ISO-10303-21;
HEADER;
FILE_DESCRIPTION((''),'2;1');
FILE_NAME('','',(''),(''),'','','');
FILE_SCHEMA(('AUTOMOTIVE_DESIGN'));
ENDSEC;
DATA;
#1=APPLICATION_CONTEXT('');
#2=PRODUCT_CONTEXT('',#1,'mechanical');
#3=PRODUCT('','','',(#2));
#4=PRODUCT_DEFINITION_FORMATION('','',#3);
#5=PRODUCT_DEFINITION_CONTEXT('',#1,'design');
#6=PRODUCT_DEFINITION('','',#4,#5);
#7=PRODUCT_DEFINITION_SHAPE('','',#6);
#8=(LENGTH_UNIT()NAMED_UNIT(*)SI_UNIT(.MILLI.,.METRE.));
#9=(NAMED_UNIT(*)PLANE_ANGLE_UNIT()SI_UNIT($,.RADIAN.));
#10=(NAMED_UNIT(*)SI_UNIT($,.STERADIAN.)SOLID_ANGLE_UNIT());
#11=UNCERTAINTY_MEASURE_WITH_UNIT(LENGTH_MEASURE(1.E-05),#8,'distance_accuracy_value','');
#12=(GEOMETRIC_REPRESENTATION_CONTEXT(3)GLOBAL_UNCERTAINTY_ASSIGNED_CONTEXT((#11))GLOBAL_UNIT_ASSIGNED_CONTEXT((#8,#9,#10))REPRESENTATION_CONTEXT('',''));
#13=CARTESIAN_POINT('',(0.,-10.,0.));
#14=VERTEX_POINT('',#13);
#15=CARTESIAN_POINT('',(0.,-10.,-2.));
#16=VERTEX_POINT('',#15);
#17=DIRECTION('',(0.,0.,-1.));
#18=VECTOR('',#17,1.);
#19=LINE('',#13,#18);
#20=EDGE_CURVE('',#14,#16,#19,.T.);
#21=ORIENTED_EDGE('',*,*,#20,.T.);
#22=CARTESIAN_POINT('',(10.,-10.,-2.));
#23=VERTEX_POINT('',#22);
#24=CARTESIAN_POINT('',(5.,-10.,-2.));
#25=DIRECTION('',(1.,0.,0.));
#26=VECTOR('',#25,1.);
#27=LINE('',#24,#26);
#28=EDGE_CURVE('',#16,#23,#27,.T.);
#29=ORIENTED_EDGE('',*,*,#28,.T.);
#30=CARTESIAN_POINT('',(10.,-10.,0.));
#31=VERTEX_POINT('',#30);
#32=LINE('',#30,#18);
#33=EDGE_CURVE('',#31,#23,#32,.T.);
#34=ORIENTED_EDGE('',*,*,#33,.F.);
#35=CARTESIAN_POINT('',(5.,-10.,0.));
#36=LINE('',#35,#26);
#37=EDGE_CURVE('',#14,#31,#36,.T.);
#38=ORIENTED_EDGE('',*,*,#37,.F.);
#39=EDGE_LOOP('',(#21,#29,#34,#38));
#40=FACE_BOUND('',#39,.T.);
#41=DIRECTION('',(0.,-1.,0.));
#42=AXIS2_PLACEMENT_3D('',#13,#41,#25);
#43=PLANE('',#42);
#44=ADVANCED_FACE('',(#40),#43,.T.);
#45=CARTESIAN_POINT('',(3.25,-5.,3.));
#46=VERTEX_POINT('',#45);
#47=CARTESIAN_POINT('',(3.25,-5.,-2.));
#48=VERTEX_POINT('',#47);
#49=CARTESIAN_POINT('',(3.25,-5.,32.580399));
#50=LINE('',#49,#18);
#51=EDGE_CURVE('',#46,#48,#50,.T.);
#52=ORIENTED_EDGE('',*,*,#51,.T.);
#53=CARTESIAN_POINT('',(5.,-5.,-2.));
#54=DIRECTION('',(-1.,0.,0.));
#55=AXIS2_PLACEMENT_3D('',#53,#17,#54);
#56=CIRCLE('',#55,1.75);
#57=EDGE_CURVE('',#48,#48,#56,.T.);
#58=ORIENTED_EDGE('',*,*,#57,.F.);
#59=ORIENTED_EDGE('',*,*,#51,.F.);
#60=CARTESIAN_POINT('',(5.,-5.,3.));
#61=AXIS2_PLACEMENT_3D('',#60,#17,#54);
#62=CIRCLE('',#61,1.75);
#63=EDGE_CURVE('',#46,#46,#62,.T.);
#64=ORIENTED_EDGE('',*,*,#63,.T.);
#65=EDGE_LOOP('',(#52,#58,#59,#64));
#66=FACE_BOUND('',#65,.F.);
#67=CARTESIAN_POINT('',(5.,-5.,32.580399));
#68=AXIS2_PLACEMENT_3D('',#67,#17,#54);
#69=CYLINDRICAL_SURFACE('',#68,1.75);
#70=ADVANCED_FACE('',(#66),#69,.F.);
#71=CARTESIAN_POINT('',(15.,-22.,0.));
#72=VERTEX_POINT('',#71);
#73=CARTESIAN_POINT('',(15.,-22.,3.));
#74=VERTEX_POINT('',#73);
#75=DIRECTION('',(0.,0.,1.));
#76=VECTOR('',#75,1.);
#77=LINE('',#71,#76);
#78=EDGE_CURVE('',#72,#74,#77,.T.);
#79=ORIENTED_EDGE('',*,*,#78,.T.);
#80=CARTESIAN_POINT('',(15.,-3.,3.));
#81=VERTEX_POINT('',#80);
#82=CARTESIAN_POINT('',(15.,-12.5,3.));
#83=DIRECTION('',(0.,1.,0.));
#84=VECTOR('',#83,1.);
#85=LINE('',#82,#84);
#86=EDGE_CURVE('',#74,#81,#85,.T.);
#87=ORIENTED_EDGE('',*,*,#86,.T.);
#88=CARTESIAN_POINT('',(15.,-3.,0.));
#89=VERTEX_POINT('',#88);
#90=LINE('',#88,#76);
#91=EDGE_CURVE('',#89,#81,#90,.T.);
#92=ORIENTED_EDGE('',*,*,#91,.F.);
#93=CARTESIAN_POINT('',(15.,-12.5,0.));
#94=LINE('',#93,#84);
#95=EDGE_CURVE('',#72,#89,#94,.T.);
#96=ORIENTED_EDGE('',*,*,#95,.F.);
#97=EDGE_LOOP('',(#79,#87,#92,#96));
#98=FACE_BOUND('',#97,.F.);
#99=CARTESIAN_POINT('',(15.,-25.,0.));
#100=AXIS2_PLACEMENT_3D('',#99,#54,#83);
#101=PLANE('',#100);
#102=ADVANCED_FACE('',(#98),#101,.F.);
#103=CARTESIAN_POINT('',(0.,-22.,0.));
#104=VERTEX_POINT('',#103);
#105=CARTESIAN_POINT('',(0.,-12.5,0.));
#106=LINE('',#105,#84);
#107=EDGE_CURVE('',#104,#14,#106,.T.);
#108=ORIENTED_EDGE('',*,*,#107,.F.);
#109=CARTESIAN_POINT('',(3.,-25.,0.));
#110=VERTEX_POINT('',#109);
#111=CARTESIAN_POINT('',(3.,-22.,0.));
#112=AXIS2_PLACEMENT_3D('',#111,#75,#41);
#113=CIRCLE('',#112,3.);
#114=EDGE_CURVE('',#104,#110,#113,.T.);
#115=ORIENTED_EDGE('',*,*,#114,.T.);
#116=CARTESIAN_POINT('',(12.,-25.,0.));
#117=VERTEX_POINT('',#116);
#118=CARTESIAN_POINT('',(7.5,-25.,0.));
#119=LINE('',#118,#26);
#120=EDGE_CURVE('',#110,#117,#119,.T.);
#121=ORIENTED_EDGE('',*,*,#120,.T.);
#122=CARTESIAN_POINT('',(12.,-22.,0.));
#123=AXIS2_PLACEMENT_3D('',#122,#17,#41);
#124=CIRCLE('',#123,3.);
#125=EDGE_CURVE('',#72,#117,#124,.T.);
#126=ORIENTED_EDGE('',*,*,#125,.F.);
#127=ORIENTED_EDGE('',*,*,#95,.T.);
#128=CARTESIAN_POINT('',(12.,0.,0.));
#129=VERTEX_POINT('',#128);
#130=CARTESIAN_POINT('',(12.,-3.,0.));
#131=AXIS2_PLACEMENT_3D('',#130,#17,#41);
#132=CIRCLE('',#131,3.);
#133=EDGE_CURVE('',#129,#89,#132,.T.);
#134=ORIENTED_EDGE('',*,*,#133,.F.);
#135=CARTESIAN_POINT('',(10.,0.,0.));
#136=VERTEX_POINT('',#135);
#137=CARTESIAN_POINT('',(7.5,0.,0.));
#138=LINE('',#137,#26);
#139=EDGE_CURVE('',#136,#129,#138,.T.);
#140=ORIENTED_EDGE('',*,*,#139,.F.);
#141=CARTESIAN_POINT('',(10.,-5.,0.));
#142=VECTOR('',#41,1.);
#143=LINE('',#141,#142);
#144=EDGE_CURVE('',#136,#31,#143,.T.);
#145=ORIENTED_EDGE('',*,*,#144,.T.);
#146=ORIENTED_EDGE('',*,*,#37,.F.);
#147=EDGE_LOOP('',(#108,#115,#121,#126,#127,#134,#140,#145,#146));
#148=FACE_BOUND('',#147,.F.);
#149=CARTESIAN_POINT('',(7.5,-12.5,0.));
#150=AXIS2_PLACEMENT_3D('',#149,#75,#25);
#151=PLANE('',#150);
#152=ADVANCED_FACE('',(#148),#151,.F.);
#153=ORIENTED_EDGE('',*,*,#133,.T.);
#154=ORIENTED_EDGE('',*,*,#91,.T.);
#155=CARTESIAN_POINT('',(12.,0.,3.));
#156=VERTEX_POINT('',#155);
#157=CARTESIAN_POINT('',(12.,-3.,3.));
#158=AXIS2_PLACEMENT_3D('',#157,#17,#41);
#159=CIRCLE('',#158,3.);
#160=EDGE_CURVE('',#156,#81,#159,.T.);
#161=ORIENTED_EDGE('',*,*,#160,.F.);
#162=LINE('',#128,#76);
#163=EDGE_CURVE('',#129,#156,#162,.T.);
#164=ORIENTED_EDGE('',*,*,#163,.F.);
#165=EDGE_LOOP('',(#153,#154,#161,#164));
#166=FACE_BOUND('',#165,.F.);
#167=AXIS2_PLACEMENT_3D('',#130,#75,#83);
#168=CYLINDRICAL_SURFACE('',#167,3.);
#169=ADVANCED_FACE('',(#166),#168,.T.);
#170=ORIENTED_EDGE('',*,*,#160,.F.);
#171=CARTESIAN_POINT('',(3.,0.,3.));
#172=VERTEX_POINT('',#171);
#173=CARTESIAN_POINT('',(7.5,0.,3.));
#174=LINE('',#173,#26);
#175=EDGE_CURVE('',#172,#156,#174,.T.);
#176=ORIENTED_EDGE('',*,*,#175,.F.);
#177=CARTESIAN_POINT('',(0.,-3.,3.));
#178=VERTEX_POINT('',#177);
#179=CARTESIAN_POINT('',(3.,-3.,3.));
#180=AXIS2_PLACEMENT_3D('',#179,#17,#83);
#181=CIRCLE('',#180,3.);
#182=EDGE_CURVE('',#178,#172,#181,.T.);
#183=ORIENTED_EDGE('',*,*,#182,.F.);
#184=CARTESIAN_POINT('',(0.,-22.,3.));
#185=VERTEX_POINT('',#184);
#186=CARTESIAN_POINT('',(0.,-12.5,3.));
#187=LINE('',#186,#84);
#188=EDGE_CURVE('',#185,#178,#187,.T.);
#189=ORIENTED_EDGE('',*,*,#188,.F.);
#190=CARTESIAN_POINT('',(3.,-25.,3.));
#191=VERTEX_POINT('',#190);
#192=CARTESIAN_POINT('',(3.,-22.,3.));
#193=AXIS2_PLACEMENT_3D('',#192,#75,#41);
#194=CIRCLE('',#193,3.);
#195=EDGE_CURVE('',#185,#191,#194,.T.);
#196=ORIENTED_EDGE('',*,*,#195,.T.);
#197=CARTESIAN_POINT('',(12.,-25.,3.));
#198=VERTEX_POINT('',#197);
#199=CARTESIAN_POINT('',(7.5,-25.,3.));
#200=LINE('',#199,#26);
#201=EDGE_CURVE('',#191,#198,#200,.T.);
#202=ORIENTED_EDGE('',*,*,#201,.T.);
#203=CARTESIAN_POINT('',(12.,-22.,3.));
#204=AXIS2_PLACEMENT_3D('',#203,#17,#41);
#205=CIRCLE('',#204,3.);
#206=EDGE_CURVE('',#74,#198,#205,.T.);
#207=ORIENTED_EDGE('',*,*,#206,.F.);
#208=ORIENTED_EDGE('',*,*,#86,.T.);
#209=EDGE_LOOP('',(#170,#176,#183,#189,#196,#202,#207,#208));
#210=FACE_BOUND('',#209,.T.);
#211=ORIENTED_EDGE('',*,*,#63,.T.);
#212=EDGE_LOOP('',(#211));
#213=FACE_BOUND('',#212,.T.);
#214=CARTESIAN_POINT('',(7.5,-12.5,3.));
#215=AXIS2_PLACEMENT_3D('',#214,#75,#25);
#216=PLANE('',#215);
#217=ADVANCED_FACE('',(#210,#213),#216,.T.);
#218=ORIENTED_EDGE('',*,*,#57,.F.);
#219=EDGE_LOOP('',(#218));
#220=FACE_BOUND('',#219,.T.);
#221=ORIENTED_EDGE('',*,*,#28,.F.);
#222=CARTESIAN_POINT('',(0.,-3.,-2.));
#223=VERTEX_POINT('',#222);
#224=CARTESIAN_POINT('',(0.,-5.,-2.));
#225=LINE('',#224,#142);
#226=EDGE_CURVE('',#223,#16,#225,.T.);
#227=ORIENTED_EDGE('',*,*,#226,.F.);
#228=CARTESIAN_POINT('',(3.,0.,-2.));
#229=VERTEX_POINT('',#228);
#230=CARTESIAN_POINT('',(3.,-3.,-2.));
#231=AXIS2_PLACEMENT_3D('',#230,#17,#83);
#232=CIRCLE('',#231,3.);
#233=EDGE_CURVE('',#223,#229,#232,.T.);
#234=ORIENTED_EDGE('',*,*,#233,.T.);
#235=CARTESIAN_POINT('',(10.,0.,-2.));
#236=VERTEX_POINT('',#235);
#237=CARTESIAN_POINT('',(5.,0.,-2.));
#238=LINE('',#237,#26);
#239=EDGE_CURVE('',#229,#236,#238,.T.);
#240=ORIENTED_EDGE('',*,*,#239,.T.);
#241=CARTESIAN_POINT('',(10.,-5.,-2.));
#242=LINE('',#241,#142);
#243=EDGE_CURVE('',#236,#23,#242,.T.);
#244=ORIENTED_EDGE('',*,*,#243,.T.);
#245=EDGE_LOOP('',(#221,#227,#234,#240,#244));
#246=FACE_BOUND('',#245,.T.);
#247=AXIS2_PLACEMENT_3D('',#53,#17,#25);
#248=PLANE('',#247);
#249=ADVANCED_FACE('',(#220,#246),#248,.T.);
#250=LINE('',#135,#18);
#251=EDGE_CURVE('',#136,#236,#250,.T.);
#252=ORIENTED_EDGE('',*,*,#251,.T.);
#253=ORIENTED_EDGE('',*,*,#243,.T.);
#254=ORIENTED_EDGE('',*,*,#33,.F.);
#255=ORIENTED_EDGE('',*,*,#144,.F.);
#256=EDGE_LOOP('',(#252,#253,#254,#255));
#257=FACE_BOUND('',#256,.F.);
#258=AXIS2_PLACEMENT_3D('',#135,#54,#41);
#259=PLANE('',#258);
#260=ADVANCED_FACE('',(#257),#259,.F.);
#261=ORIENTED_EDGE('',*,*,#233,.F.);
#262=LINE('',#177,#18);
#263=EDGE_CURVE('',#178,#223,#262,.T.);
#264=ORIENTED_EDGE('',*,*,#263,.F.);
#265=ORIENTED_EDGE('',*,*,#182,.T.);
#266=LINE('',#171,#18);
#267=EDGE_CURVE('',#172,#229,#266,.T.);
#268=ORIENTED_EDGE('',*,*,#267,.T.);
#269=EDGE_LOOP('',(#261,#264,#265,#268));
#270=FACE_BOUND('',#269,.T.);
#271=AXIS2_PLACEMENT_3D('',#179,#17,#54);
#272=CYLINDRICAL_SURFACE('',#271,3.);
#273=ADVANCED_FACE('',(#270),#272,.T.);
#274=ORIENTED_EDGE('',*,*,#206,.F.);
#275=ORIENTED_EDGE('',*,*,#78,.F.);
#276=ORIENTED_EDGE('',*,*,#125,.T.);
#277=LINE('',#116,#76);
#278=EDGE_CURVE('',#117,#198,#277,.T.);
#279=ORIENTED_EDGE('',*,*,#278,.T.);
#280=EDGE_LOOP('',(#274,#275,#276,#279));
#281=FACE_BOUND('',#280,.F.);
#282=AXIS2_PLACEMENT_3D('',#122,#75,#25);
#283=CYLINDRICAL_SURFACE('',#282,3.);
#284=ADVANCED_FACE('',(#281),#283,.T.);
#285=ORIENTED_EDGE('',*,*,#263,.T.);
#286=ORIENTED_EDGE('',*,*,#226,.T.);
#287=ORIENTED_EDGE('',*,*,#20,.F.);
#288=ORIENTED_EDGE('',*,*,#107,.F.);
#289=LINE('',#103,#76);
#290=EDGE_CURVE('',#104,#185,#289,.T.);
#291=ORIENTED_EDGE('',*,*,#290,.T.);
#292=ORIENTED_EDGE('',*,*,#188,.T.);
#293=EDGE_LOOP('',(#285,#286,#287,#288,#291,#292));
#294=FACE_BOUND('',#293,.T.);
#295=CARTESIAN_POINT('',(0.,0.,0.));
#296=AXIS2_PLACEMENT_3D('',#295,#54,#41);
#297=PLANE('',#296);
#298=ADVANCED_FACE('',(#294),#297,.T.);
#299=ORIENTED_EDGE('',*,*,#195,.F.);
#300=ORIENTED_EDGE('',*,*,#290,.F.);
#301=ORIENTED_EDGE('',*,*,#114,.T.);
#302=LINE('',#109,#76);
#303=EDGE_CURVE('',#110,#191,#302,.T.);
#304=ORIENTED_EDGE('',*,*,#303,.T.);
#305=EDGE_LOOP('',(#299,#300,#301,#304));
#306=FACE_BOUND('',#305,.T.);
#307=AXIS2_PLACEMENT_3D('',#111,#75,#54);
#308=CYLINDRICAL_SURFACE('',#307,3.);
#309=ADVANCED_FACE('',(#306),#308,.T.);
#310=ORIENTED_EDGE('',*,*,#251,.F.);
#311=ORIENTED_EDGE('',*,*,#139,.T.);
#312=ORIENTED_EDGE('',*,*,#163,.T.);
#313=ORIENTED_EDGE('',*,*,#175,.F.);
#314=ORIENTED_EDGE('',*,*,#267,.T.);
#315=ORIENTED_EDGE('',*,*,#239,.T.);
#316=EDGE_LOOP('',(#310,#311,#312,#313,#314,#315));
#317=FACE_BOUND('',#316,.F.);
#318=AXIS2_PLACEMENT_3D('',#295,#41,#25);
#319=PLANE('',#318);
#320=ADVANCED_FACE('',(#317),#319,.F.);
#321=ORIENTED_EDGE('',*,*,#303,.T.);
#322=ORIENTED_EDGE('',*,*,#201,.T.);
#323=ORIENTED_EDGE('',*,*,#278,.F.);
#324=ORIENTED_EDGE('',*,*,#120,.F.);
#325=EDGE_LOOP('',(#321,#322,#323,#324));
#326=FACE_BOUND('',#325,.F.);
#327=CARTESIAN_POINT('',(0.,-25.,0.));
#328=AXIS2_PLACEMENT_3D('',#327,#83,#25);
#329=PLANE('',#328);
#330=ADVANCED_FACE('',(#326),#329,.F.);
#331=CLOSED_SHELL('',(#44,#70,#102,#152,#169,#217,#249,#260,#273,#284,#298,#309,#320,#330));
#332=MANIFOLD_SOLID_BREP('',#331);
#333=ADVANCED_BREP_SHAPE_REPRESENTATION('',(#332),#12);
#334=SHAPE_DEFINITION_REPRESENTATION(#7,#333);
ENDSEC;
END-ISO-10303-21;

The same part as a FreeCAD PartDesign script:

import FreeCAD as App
import Part
import Sketcher
Q = App.Units.Quantity


def edges_at(feature, points):
    """Names of the edges that pass closest to the given points."""
    edges = feature.Shape.Edges
    near = lambda p: min(range(len(edges)), key=lambda i: edges[i].distToShape(Part.Vertex(*p))[0])
    return sorted({f"Edge{near(p) + 1}" for p in points})

doc = App.newDocument("Part")
params = doc.addObject("Spreadsheet::Sheet", "Params")
for row, (alias, value) in enumerate([
    ("sketch1_width", "15 mm"),
    ("sketch1_height", "25 mm"),
    ("pad1_length", "3 mm"),
    ("sketch2_width", "10 mm"),
    ("pad2_length", "2 mm"),
    ("fillet_radius", "3 mm"),
    ("sketch3_diameter", "3.5 mm"),
    ("hole_diameter", "3.5 mm"),
], start=1):
    params.set(f"A{row}", alias)
    params.set(f"B{row}", "=" + value)
    params.setAlias(f"B{row}", alias)

body = doc.addObject("PartDesign::Body", "Body")

# Sketch on XY plane
sketch1 = doc.addObject("Sketcher::SketchObject", "Sketch")
body.addObject(sketch1)
sketch1.AttachmentSupport = (doc.XY_Plane, [""])
sketch1.MapMode = "FlatFace"
sketch1.addGeometry([
    Part.LineSegment(App.Vector(0, 0, 0), App.Vector(0, -25, 0)),
    Part.LineSegment(App.Vector(0, -25, 0), App.Vector(15, -25, 0)),
    Part.LineSegment(App.Vector(15, -25, 0), App.Vector(15, 0, 0)),
    Part.LineSegment(App.Vector(15, 0, 0), App.Vector(0, 0, 0)),
], False)
sketch1.addConstraint([
    Sketcher.Constraint("Coincident", 0, 2, 1, 1),
    Sketcher.Constraint("Coincident", 1, 2, 2, 1),
    Sketcher.Constraint("Coincident", 2, 2, 3, 1),
    Sketcher.Constraint("Coincident", 3, 2, 0, 1),
    Sketcher.Constraint("Vertical", 0),
    Sketcher.Constraint("Horizontal", 1),
    Sketcher.Constraint("Vertical", 2),
    Sketcher.Constraint("Horizontal", 3),
    Sketcher.Constraint("Coincident", 3, 2, -1, 1),
    Sketcher.Constraint("DistanceX", 1, 1, 1, 2, Q("15 mm")),
    Sketcher.Constraint("DistanceY", 0, 2, 0, 1, Q("25 mm")),
])
sketch1.setExpression("Constraints[9]", "Params.sketch1_width")
sketch1.setExpression("Constraints[10]", "Params.sketch1_height")
pad1 = doc.addObject("PartDesign::Pad", "Pad")
body.addObject(pad1)
pad1.Profile = sketch1
pad1.setExpression("Length", "Params.pad1_length")

# Sketch on XY plane
sketch2 = doc.addObject("Sketcher::SketchObject", "Sketch001")
body.addObject(sketch2)
sketch2.AttachmentSupport = (doc.XY_Plane, [""])
sketch2.MapMode = "FlatFace"
sketch2.addGeometry([
    Part.LineSegment(App.Vector(0, -10, 0), App.Vector(0, 0, 0)),
    Part.LineSegment(App.Vector(0, 0, 0), App.Vector(10, 0, 0)),
    Part.LineSegment(App.Vector(10, 0, 0), App.Vector(10, -10, 0)),
    Part.LineSegment(App.Vector(10, -10, 0), App.Vector(0, -10, 0)),
], False)
sketch2.addConstraint([
    Sketcher.Constraint("Coincident", 0, 2, 1, 1),
    Sketcher.Constraint("Coincident", 1, 2, 2, 1),
    Sketcher.Constraint("Coincident", 2, 2, 3, 1),
    Sketcher.Constraint("Coincident", 3, 2, 0, 1),
    Sketcher.Constraint("Vertical", 0),
    Sketcher.Constraint("Horizontal", 1),
    Sketcher.Constraint("Vertical", 2),
    Sketcher.Constraint("Horizontal", 3),
    Sketcher.Constraint("Coincident", 0, 2, -1, 1),
    Sketcher.Constraint("Equal", 3, 0),
    Sketcher.Constraint("DistanceX", 1, 1, 1, 2, Q("10 mm")),
])
sketch2.setExpression("Constraints[10]", "Params.sketch2_width")
pad2 = doc.addObject("PartDesign::Pad", "Pad001")
body.addObject(pad2)
pad2.Profile = sketch2
pad2.setExpression("Length", "Params.pad2_length")
pad2.Reversed = True
doc.recompute()

fillet = doc.addObject("PartDesign::Fillet", "Fillet")
body.addObject(fillet)
fillet.Base = (pad2, edges_at(pad2, [
    (0, 0, 0.5),
    (0, -25, 1.5),
    (15, -25, 1.5),
    (15, 0, 1.5),
]))
fillet.setExpression("Radius", "Params.fillet_radius")

# Sketch on XY plane
sketch3 = doc.addObject("Sketcher::SketchObject", "Sketch002")
body.addObject(sketch3)
sketch3.AttachmentSupport = (doc.XY_Plane, [""])
sketch3.MapMode = "FlatFace"
sketch3.AttachmentOffset = App.Placement(App.Vector(0, 0, 3), App.Rotation())
sketch3.addGeometry(Part.Circle(App.Vector(5, -5, 0), App.Vector(0, 0, 1), 1.8), False)
sketch3.addConstraint([
    Sketcher.Constraint("Diameter", 0, Q("3.5 mm")),
    Sketcher.Constraint("DistanceX", -1, 1, 0, 3, Q("5 mm")),
    Sketcher.Constraint("DistanceY", 0, 3, -1, 1, Q("5 mm")),
])
sketch3.setExpression("Constraints[0]", "Params.sketch3_diameter")
doc.recompute()
hole = doc.addObject("PartDesign::Hole", "Hole")
body.addObject(hole)
hole.Profile = sketch3
hole.ThreadType = "None"
hole.setExpression("Diameter", "Params.hole_diameter")
hole.DepthType = "ThroughAll"

doc.recompute()
